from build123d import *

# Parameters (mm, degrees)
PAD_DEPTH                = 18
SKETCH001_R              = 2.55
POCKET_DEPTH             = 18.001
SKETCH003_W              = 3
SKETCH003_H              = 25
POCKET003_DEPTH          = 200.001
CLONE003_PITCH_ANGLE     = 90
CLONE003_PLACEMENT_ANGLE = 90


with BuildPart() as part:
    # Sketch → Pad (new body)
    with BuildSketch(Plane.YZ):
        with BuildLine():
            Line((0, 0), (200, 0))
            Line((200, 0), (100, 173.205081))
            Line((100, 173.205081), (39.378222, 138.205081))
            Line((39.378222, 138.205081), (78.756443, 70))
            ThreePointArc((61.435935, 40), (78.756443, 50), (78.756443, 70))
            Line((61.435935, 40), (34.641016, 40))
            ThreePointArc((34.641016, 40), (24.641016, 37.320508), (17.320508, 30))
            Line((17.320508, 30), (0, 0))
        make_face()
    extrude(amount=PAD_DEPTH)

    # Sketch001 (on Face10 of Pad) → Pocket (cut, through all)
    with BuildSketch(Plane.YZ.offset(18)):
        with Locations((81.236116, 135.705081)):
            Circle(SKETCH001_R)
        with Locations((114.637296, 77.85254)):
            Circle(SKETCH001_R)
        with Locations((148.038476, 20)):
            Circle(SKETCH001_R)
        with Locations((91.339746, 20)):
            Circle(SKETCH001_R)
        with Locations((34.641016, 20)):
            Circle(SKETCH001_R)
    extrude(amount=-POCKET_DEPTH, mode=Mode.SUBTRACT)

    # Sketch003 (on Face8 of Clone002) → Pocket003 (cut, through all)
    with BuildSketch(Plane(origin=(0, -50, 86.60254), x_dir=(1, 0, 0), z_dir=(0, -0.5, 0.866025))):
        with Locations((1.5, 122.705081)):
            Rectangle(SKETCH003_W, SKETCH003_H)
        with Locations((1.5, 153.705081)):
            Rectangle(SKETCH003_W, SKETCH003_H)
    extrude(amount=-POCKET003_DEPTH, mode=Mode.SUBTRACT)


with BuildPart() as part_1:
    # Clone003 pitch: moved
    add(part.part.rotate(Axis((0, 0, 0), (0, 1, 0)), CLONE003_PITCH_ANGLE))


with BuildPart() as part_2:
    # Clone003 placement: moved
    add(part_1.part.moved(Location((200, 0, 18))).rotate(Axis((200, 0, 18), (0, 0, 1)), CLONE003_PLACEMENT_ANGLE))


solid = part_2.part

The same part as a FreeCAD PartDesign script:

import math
import FreeCAD as App
import Part
import Sketcher
from FreeCAD import Vector
Q = App.Units.Quantity


def add_polygon(sketch, points):
    """Adds a closed chain of lines whose ends are joined by coincident constraints."""
    first, n = sketch.GeometryCount, len(points)
    for a, b in zip(points, points[1:] + points[:1]):
        sketch.addGeometry(Part.LineSegment(App.Vector(*a, 0), App.Vector(*b, 0)), False)
    for i in range(n):
        sketch.addConstraint(Sketcher.Constraint("Coincident", first + i, 2, first + (i + 1) % n, 1))

doc = App.newDocument("Part")
params = doc.addObject("Spreadsheet::Sheet", "Params")
for row, (alias, value) in enumerate([
    ("sketch1_radius", "20 mm"),
    ("sketch1_width", "200 mm"),
    ("sketch1_length", "200 mm"),
    ("sketch1_length2", "70 mm"),
    ("pad1_length", "18 mm"),
    ("sketch2_diameter", "5.1 mm"),
    ("sketch3_width", "3 mm"),
    ("sketch3_height", "25 mm"),
], start=1):
    params.set(f"A{row}", alias)
    params.set(f"B{row}", "=" + value)
    params.setAlias(f"B{row}", alias)

body = doc.addObject("PartDesign::Body", "Body")

sketch1 = body.newObject("Sketcher::SketchObject", "Sketch")
sketch1.AttachmentSupport = (doc.getObject("YZ_Plane"), [""])
sketch1.MapMode = "FlatFace"
sketch1.addGeometry([
    Part.LineSegment(Vector(0, 0, 0), Vector(200, 0, 0)),
    Part.LineSegment(Vector(200, 0, 0), Vector(100, 173, 0)),
    Part.LineSegment(Vector(100, 173, 0), Vector(39, 138, 0)),
    Part.LineSegment(Vector(39, 138, 0), Vector(79, 70, 0)),
    Part.ArcOfCircle(Part.Circle(Vector(61, 60, 0), Vector(0, 0, 1), 20), math.radians(-90), math.radians(30)),
    Part.LineSegment(Vector(61, 40, 0), Vector(35, 40, 0)),
    Part.ArcOfCircle(Part.Circle(Vector(35, 20, 0), Vector(0, 0, 1), 20), math.radians(90), math.radians(150)),
    Part.LineSegment(Vector(17, 30, 0), Vector(0, 0, 0)),
], False)
sketch1.addConstraint([
    Sketcher.Constraint("Coincident", 0, 2, 1, 1),
    Sketcher.Constraint("Coincident", 1, 2, 2, 1),
    Sketcher.Constraint("Coincident", 2, 2, 3, 1),
    Sketcher.Constraint("Tangent", 3, 2, 4, 2),
    Sketcher.Constraint("Tangent", 4, 1, 5, 1),
    Sketcher.Constraint("Tangent", 5, 2, 6, 1),
    Sketcher.Constraint("Tangent", 6, 2, 7, 1),
    Sketcher.Constraint("Coincident", 7, 2, 0, 1),
    Sketcher.Constraint("Horizontal", 0),
    Sketcher.Constraint("Horizontal", 5),
    Sketcher.Constraint("Coincident", 7, 2, -1, 1),
    Sketcher.Constraint("Equal", 4, 6),
    Sketcher.Constraint("Perpendicular", 1, 2),
    Sketcher.Constraint("Perpendicular", 2, 3),
    Sketcher.Constraint("Radius", 4, Q("20 mm")),
    Sketcher.Constraint("DistanceX", 0, 1, 0, 2, Q("200 mm")),
    Sketcher.Constraint("Angle", 1, Q("120 deg")),
    Sketcher.Constraint("Angle", 7, Q("-120 deg")),
    Sketcher.Constraint("Distance", 1, Q("200 mm")),
    Sketcher.Constraint("Distance", 2, Q("70 mm")),
    Sketcher.Constraint("DistanceY", -1, 1, 4, 3, Q("60 mm")),
])
sketch1.setExpression("Constraints[14]", "Params.sketch1_radius")
sketch1.setExpression("Constraints[15]", "Params.sketch1_width")
sketch1.setExpression("Constraints[18]", "Params.sketch1_length")
sketch1.setExpression("Constraints[19]", "Params.sketch1_length2")
pad1 = body.newObject("PartDesign::Pad", "Pad")
pad1.Profile = sketch1
pad1.setExpression("Length", "Params.pad1_length")

sketch2 = body.newObject("Sketcher::SketchObject", "Sketch001")
sketch2.AttachmentSupport = (doc.getObject("YZ_Plane"), [""])
sketch2.MapMode = "FlatFace"
sketch2.AttachmentOffset = App.Placement(Vector(0, 0, 18), App.Rotation())
sketch2.addGeometry([
    Part.Circle(Vector(81.2, 135.7, 0), Vector(0, 0, 1), 2.5),
    Part.Circle(Vector(114.6, 77.9, 0), Vector(0, 0, 1), 2.5),
    Part.Circle(Vector(148, 20, 0), Vector(0, 0, 1), 2.5),
    Part.Circle(Vector(91.3, 20, 0), Vector(0, 0, 1), 2.5),
    Part.Circle(Vector(34.6, 20, 0), Vector(0, 0, 1), 2.5),
], False)
sketch2.addConstraint([
    Sketcher.Constraint("Equal", 0, 1),
    Sketcher.Constraint("Equal", 1, 2),
    Sketcher.Constraint("Equal", 2, 3),
    Sketcher.Constraint("Equal", 3, 4),
    Sketcher.Constraint("Horizontal", 2, 3, 3, 3),
    Sketcher.Constraint("Horizontal", 3, 3, 4, 3),
    Sketcher.Constraint("Diameter", 0, Q("5.1 mm")),
    Sketcher.Constraint("DistanceY", -1, 1, 2, 3, Q("20 mm")),
    Sketcher.Constraint("DistanceX", 4, 3, 0, 3, Q("46.5951 mm")),
    Sketcher.Constraint("DistanceY", -1, 1, 0, 3, Q("135.705081 mm")),
    Sketcher.Constraint("DistanceY", -1, 1, 1, 3, Q("77.85254 mm")),
    Sketcher.Constraint("DistanceX", 0, 3, 1, 3, Q("33.40118 mm")),
    Sketcher.Constraint("DistanceX", 1, 3, 2, 3, Q("33.40118 mm")),
    Sketcher.Constraint("DistanceX", 3, 3, 2, 3, Q("56.69873 mm")),
    Sketcher.Constraint("DistanceX", -1, 1, 0, 3, Q("81.236116 mm")),
])
sketch2.setExpression("Constraints[6]", "Params.sketch2_diameter")
pocket1 = body.newObject("PartDesign::Pocket", "Pocket")
pocket1.Profile = sketch2
pocket1.Type = "ThroughAll"

sketch3 = body.newObject("Sketcher::SketchObject", "Sketch002")
sketch3.Placement = App.Placement(Vector(0, -50, 86.60254), App.Rotation(Vector(1, 0, 0), Vector(0, 0.866025303, 0.500000175), Vector(0, -0.500000175, 0.866025303), "ZXY"))
add_polygon(sketch3, [(0, 135.2), (0, 110.2), (3, 110.2), (3, 135.2)])
add_polygon(sketch3, [(0, 166.2), (0, 141.2), (3, 141.2), (3, 166.2)])
sketch3.addConstraint([
    Sketcher.Constraint("Vertical", 0),
    Sketcher.Constraint("Horizontal", 1),
    Sketcher.Constraint("Vertical", 2),
    Sketcher.Constraint("Horizontal", 3),
    Sketcher.Constraint("Vertical", 4),
    Sketcher.Constraint("Horizontal", 5),
    Sketcher.Constraint("Vertical", 6),
    Sketcher.Constraint("Horizontal", 7),
    Sketcher.Constraint("PointOnObject", 0, 2, -2),
    Sketcher.Constraint("PointOnObject", 4, 2, -2),
    Sketcher.Constraint("Vertical", 2, 2, 5, 2),
    Sketcher.Constraint("Equal", 2, 4),
    Sketcher.Constraint("DistanceX", 1, 1, 1, 2, Q("3 mm")),
    Sketcher.Constraint("DistanceY", 0, 2, 0, 1, Q("25 mm")),
    Sketcher.Constraint("DistanceY", 3, 2, 4, 2, Q("6 mm")),
    Sketcher.Constraint("DistanceY", -1, 1, 0, 2, Q("110.205081 mm")),
])
sketch3.setExpression("Constraints[20]", "Params.sketch3_width")
sketch3.setExpression("Constraints[21]", "Params.sketch3_height")
pocket2 = body.newObject("PartDesign::Pocket", "Pocket001")
pocket2.Profile = sketch3
pocket2.Type = "ThroughAll"
body2 = doc.addObject("PartDesign::Body", "Body001")
doc.recompute()

body.Placement = App.Placement(Vector(0, 0, 0), App.Rotation(Vector(0, 1, 0), 90))
boolean = body2.newObject("PartDesign::Boolean", "Boolean")
boolean.Type = "Fuse"
boolean.addObjects([body])
body3 = doc.addObject("PartDesign::Body", "Body002")
doc.recompute()

body2.Placement = App.Placement(Vector(200, 0, 18), App.Rotation(Vector(0, 0, 1), 90))
boolean2 = body3.newObject("PartDesign::Boolean", "Boolean001")
boolean2.Type = "Fuse"
boolean2.addObjects([body2])

doc.recompute()
